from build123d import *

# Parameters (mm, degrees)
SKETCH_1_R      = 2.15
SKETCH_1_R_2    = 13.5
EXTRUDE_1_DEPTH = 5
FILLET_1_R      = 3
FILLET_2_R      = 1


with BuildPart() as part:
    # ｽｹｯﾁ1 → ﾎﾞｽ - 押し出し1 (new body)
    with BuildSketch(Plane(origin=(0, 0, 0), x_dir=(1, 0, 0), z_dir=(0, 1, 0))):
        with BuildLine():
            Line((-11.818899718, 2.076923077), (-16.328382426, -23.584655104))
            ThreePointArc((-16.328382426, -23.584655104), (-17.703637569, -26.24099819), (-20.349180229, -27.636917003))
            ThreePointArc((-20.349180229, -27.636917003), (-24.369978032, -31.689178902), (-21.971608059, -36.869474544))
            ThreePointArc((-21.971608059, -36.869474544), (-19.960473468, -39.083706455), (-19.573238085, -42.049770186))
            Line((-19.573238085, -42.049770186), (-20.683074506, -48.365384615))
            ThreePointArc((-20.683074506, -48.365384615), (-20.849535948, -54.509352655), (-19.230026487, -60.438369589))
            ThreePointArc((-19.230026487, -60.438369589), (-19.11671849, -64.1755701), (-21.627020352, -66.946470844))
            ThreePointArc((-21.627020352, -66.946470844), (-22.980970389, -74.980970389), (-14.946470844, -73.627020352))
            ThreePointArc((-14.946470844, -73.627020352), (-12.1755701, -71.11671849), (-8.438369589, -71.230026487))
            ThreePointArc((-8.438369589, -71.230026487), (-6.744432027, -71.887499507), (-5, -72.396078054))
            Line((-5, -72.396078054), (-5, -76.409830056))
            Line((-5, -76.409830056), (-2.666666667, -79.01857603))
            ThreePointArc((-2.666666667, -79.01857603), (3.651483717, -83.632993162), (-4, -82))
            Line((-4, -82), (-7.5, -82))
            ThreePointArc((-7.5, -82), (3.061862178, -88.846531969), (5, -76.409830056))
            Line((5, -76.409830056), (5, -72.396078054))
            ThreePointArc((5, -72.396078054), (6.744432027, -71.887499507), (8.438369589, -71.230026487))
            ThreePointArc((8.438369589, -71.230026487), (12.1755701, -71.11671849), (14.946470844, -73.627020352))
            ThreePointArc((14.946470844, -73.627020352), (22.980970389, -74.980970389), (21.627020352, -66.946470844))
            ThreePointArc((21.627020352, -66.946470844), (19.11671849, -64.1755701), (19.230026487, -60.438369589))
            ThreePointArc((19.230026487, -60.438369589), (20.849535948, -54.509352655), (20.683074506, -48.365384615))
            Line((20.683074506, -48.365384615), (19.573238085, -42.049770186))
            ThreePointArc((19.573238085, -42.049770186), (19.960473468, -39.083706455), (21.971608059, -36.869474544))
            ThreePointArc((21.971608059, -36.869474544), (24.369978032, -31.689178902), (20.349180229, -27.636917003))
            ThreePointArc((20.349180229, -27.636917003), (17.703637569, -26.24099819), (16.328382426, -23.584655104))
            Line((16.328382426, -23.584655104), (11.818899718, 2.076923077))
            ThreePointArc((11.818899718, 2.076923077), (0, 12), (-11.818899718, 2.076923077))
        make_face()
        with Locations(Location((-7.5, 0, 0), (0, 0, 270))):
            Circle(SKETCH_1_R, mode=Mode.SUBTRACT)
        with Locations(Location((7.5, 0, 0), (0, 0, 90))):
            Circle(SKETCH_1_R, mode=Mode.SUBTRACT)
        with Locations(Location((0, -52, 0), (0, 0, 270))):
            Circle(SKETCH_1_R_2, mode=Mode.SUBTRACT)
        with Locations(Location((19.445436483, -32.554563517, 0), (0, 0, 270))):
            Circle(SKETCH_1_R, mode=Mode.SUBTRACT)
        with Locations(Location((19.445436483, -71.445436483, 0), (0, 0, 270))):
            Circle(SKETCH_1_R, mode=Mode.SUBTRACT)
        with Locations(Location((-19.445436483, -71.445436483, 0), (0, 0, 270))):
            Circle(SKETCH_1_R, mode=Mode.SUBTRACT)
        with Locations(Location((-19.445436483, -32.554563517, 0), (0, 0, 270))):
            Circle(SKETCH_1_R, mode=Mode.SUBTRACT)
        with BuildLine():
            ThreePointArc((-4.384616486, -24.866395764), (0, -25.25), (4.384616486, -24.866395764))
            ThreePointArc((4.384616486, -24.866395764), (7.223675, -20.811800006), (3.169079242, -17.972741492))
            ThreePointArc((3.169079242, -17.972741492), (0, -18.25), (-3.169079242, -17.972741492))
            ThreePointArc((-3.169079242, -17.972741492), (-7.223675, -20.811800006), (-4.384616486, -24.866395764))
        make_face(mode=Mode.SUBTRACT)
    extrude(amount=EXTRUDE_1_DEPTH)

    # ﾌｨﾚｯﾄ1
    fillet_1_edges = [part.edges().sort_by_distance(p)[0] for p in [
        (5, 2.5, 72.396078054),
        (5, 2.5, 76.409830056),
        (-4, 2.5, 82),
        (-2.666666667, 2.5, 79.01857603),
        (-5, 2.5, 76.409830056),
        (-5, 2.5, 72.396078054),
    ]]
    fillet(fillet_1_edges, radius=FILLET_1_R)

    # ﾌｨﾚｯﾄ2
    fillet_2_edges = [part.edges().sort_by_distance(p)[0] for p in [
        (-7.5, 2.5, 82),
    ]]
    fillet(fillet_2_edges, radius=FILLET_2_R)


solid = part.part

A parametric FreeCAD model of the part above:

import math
import FreeCAD as App
import Part
import Sketcher

V = App.Vector


def edges_at(feature, points):
    """Names of the edges that pass closest to the given points."""
    edges = feature.Shape.Edges
    near = lambda p: min(range(len(edges)), key=lambda i: edges[i].distToShape(Part.Vertex(*p))[0])
    return sorted({f"Edge{near(p) + 1}" for p in points})

doc = App.newDocument("Part")
body = doc.addObject("PartDesign::Body", "Body")

# Sketch on XZ plane
sketch1 = body.newObject("Sketcher::SketchObject", "Sketch")
sketch1.AttachmentSupport = (doc.getObject("XZ_Plane"), [""])
sketch1.MapMode = "FlatFace"
sketch1.addGeometry(Part.LineSegment(V(-11.8, -2.1, 0), V(-16.3, 23.6, 0)), False)
sketch1.addGeometry(Part.ArcOfCircle(Part.Circle(V(-21.3, 22.7, 0), V(0, 0, 1), 5), math.radians(10), math.radians(80)), False)
sketch1.addGeometry(Part.ArcOfCircle(Part.Circle(V(-19.4, 32.6, 0), V(0, 0, 1), 5), math.radians(120), math.radians(260)), False)
sketch1.addGeometry(Part.ArcOfCircle(Part.Circle(V(-24.5, 41.2, 0), V(0, 0, 1), 5), math.radians(-60), math.radians(10)), False)
sketch1.addGeometry(Part.LineSegment(V(-19.6, 42, 0), V(-20.7, 48.4, 0)), False)
sketch1.addGeometry(Part.ArcOfCircle(Part.Circle(V(0, 52, 0), V(0, 0, 1), 21), math.radians(156), math.radians(190)), False)
sketch1.addGeometry(Part.ArcOfCircle(Part.Circle(V(-23.8, 62.4, 0), V(0, 0, 1), 5), math.radians(-24), math.radians(64)), False)
sketch1.addGeometry(Part.ArcOfCircle(Part.Circle(V(-19.4, 71.4, 0), V(0, 0, 1), 5), math.radians(26), math.radians(244)), False)
sketch1.addGeometry(Part.ArcOfCircle(Part.Circle(V(-10.4, 75.8, 0), V(0, 0, 1), 5), math.radians(-154), math.radians(-66)), False)
sketch1.addGeometry(Part.ArcOfCircle(Part.Circle(V(0, 52, 0), V(0, 0, 1), 21), math.radians(103.77), math.radians(113.69)), False)
sketch1.addGeometry(Part.LineSegment(V(-5, 72.4, 0), V(-5, 76.4, 0)), False)
sketch1.addGeometry(Part.LineSegment(V(-5, 76.4, 0), V(-2.7, 79, 0)), False)
sketch1.addGeometry(Part.ArcOfCircle(Part.Circle(V(0, 82, 0), V(0, 0, 1), 4), math.radians(-132), math.radians(180)), False)
sketch1.addGeometry(Part.LineSegment(V(-4, 82, 0), V(-7.5, 82, 0)), False)
sketch1.addGeometry(Part.ArcOfCircle(Part.Circle(V(0, 82, 0), V(0, 0, 1), 7.5), math.radians(-48), math.radians(180)), False)
sketch1.addGeometry(Part.LineSegment(V(5, 76.4, 0), V(5, 72.4, 0)), False)
sketch1.addGeometry(Part.ArcOfCircle(Part.Circle(V(0, 52, 0), V(0, 0, 1), 21), math.radians(66.31), math.radians(76.23)), False)
sketch1.addGeometry(Part.ArcOfCircle(Part.Circle(V(10.4, 75.8, 0), V(0, 0, 1), 5), math.radians(-114), math.radians(-26)), False)
sketch1.addGeometry(Part.ArcOfCircle(Part.Circle(V(19.4, 71.4, 0), V(0, 0, 1), 5), math.radians(-64), math.radians(154)), False)
sketch1.addGeometry(Part.ArcOfCircle(Part.Circle(V(23.8, 62.4, 0), V(0, 0, 1), 5), math.radians(116), math.radians(204)), False)
sketch1.addGeometry(Part.ArcOfCircle(Part.Circle(V(0, 52, 0), V(0, 0, 1), 21), math.radians(-10), math.radians(24)), False)
sketch1.addGeometry(Part.LineSegment(V(20.7, 48.4, 0), V(19.6, 42, 0)), False)
sketch1.addGeometry(Part.ArcOfCircle(Part.Circle(V(24.5, 41.2, 0), V(0, 0, 1), 5), math.radians(170), math.radians(240)), False)
sketch1.addGeometry(Part.ArcOfCircle(Part.Circle(V(19.4, 32.6, 0), V(0, 0, 1), 5), math.radians(-80), math.radians(60)), False)
sketch1.addGeometry(Part.ArcOfCircle(Part.Circle(V(21.3, 22.7, 0), V(0, 0, 1), 5), math.radians(100), math.radians(170)), False)
sketch1.addGeometry(Part.LineSegment(V(16.3, 23.6, 0), V(11.8, -2.1, 0)), False)
sketch1.addGeometry(Part.ArcOfCircle(Part.Circle(V(0, 0, 0), V(0, 0, 1), 12), math.radians(-170), math.radians(-10)), False)
sketch1.addGeometry(Part.Circle(V(-19.4, 71.4, 0), V(0, 0, 1), 2.1), False)
sketch1.addGeometry(Part.Circle(V(19.4, 71.4, 0), V(0, 0, 1), 2.1), False)
sketch1.addGeometry(Part.Circle(V(0, 52, 0), V(0, 0, 1), 13.5), False)
sketch1.addGeometry(Part.Circle(V(-19.4, 32.6, 0), V(0, 0, 1), 2.1), False)
sketch1.addGeometry(Part.Circle(V(-7.5, 0, 0), V(0, 0, 1), 2.1), False)
sketch1.addGeometry(Part.ArcOfCircle(Part.Circle(V(0, 0, 0), V(0, 0, 1), 25.3), math.radians(80), math.radians(100)), False)
sketch1.addGeometry(Part.ArcOfCircle(Part.Circle(V(-3.8, 21.4, 0), V(0, 0, 1), 3.5), math.radians(100), math.radians(280)), False)
sketch1.addGeometry(Part.ArcOfCircle(Part.Circle(V(0, 0, 0), V(0, 0, 1), 18.2), math.radians(80), math.radians(100)), False)
sketch1.addGeometry(Part.ArcOfCircle(Part.Circle(V(3.8, 21.4, 0), V(0, 0, 1), 3.5), math.radians(-100), math.radians(80)), False)
sketch1.addGeometry(Part.Circle(V(19.4, 32.6, 0), V(0, 0, 1), 2.1), False)
sketch1.addGeometry(Part.Circle(V(7.5, 0, 0), V(0, 0, 1), 2.1), False)
sketch1.addConstraint(Sketcher.Constraint("Tangent", 0, 2, 1, 1))
sketch1.addConstraint(Sketcher.Constraint("Tangent", 1, 2, 2, 2))
sketch1.addConstraint(Sketcher.Constraint("Tangent", 2, 1, 3, 1))
sketch1.addConstraint(Sketcher.Constraint("Tangent", 3, 2, 4, 1))
sketch1.addConstraint(Sketcher.Constraint("Tangent", 4, 2, 5, 2))
sketch1.addConstraint(Sketcher.Constraint("Tangent", 5, 1, 6, 1))
sketch1.addConstraint(Sketcher.Constraint("Tangent", 6, 2, 7, 2))
sketch1.addConstraint(Sketcher.Constraint("Tangent", 7, 1, 8, 1))
sketch1.addConstraint(Sketcher.Constraint("Tangent", 8, 2, 9, 2))
sketch1.addConstraint(Sketcher.Constraint("Coincident", 9, 1, 10, 1))
sketch1.addConstraint(Sketcher.Constraint("Coincident", 10, 2, 11, 1))
sketch1.addConstraint(Sketcher.Constraint("Coincident", 11, 2, 12, 1))
sketch1.addConstraint(Sketcher.Constraint("Coincident", 12, 2, 13, 1))
sketch1.addConstraint(Sketcher.Constraint("Coincident", 13, 2, 14, 2))
sketch1.addConstraint(Sketcher.Constraint("Coincident", 14, 1, 15, 1))
sketch1.addConstraint(Sketcher.Constraint("Coincident", 15, 2, 16, 2))
sketch1.addConstraint(Sketcher.Constraint("Tangent", 16, 1, 17, 1))
sketch1.addConstraint(Sketcher.Constraint("Tangent", 17, 2, 18, 2))
sketch1.addConstraint(Sketcher.Constraint("Tangent", 18, 1, 19, 1))
sketch1.addConstraint(Sketcher.Constraint("Tangent", 19, 2, 20, 2))
sketch1.addConstraint(Sketcher.Constraint("Tangent", 20, 1, 21, 1))
sketch1.addConstraint(Sketcher.Constraint("Tangent", 21, 2, 22, 1))
sketch1.addConstraint(Sketcher.Constraint("Tangent", 22, 2, 23, 2))
sketch1.addConstraint(Sketcher.Constraint("Tangent", 23, 1, 24, 1))
sketch1.addConstraint(Sketcher.Constraint("Tangent", 24, 2, 25, 1))
sketch1.addConstraint(Sketcher.Constraint("Tangent", 25, 2, 26, 2))
sketch1.addConstraint(Sketcher.Constraint("Tangent", 26, 1, 0, 1))
sketch1.addConstraint(Sketcher.Constraint("Tangent", 32, 2, 33, 1))
sketch1.addConstraint(Sketcher.Constraint("Tangent", 33, 2, 34, 2))
sketch1.addConstraint(Sketcher.Constraint("Tangent", 34, 1, 35, 1))
sketch1.addConstraint(Sketcher.Constraint("Tangent", 35, 2, 32, 1))
sketch1.addConstraint(Sketcher.Constraint("Vertical", 10))
sketch1.addConstraint(Sketcher.Constraint("Horizontal", 13))
sketch1.addConstraint(Sketcher.Constraint("Vertical", 15))
sketch1.addConstraint(Sketcher.Constraint("Coincident", 26, 3, -1, 1))
sketch1.addConstraint(Sketcher.Constraint("Coincident", 32, 3, -1, 1))
sketch1.addConstraint(Sketcher.Constraint("Coincident", 34, 3, -1, 1))
sketch1.addConstraint(Sketcher.Constraint("Coincident", 9, 3, 5, 3))
sketch1.addConstraint(Sketcher.Constraint("Coincident", 14, 3, 12, 3))
sketch1.addConstraint(Sketcher.Constraint("Coincident", 16, 3, 5, 3))
sketch1.addConstraint(Sketcher.Constraint("Coincident", 20, 3, 5, 3))
sketch1.addConstraint(Sketcher.Constraint("Coincident", 27, 3, 7, 3))
sketch1.addConstraint(Sketcher.Constraint("Coincident", 28, 3, 18, 3))
sketch1.addConstraint(Sketcher.Constraint("Coincident", 29, 3, 5, 3))
sketch1.addConstraint(Sketcher.Constraint("Coincident", 30, 3, 2, 3))
sketch1.addConstraint(Sketcher.Constraint("Coincident", 36, 3, 23, 3))
sketch1.addConstraint(Sketcher.Constraint("Equal", 1, 2))
sketch1.addConstraint(Sketcher.Constraint("Equal", 2, 3))
sketch1.addConstraint(Sketcher.Constraint("Equal", 3, 6))
sketch1.addConstraint(Sketcher.Constraint("Equal", 6, 7))
sketch1.addConstraint(Sketcher.Constraint("Equal", 7, 8))
sketch1.addConstraint(Sketcher.Constraint("Equal", 5, 9))
sketch1.addConstraint(Sketcher.Constraint("Equal", 9, 16))
sketch1.addConstraint(Sketcher.Constraint("Equal", 8, 17))
sketch1.addConstraint(Sketcher.Constraint("Equal", 17, 18))
sketch1.addConstraint(Sketcher.Constraint("Equal", 18, 19))
sketch1.addConstraint(Sketcher.Constraint("Equal", 16, 20))
sketch1.addConstraint(Sketcher.Constraint("Equal", 19, 22))
sketch1.addConstraint(Sketcher.Constraint("Equal", 22, 23))
sketch1.addConstraint(Sketcher.Constraint("Equal", 23, 24))
sketch1.addConstraint(Sketcher.Constraint("Equal", 27, 28))
sketch1.addConstraint(Sketcher.Constraint("Equal", 28, 30))
sketch1.addConstraint(Sketcher.Constraint("Equal", 30, 31))
sketch1.addConstraint(Sketcher.Constraint("Equal", 31, 36))
sketch1.addConstraint(Sketcher.Constraint("Equal", 36, 37))
sketch1.addConstraint(Sketcher.Constraint("Symmetric", 31, 3, 37, 3, -1, 1))
sketch1.addConstraint(Sketcher.Constraint("Symmetric", 8, 3, 17, 3, -2))
sketch1.addConstraint(Sketcher.Constraint("Symmetric", 3, 3, 22, 3, -2))
sketch1.addConstraint(Sketcher.Constraint("Symmetric", 1, 3, 24, 3, -2))
sketch1.addConstraint(Sketcher.Constraint("Symmetric", 10, 2, 14, 1, -2))
sketch1.addConstraint(Sketcher.Constraint("PointOnObject", 12, 3, -2))
sketch1.addConstraint(Sketcher.Constraint("PointOnObject", 31, 3, -1))
sketch1.addConstraint(Sketcher.Constraint("Parallel", 0, 4))
sketch1.addConstraint(Sketcher.Constraint("Horizontal", 7, 3, 18, 3))
sketch1.addConstraint(Sketcher.Constraint("Horizontal", 33, 3, 35, 3))
sketch1.addConstraint(Sketcher.Constraint("Horizontal", 14, 3, 12, 2))
sketch1.addConstraint(Sketcher.Constraint("Vertical", 2, 3, 7, 3))
sketch1.addConstraint(Sketcher.Constraint("Vertical", 31, 3, 13, 2))
sketch1.addConstraint(Sketcher.Constraint("Diameter", 29, 27.0))
sketch1.addConstraint(Sketcher.Constraint("Radius", 1, 5.0))
sketch1.addConstraint(Sketcher.Constraint("Radius", 5, 21.0))
sketch1.addConstraint(Sketcher.Constraint("Radius", 12, 4.0))
sketch1.addConstraint(Sketcher.Constraint("Radius", 26, 12.0))
sketch1.addConstraint(Sketcher.Constraint("Diameter", 27, 4.3))
sketch1.addConstraint(Sketcher.Constraint("Radius", 14, 7.5))
sketch1.addConstraint(Sketcher.Constraint("Radius", 33, 3.5))
sketch1.addConstraint(Sketcher.Constraint("Radius", 32, 25.25))
sketch1.addConstraint(Sketcher.Constraint("DistanceY", -1, 1, 5, 3, 52.0))
sketch1.addConstraint(Sketcher.Constraint("DistanceY", -1, 1, 12, 3, 82.0))
sketch1.addConstraint(Sketcher.Constraint("DistanceX", 9, 1, -1, 1, 5.0))
sketch1.addConstraint(Sketcher.Constraint("DistanceX", -1, 1, 25, 2, 11.8189))
sketch1.addConstraint(Sketcher.Constraint("Distance", 0, 26.054789))
sketch1.addConstraint(Sketcher.Constraint("Distance", 4, 6.412388))
sketch1.addConstraint(Sketcher.Constraint("DistanceY", -1, 1, 33, 3, 21.419569))
sketch1.addConstraint(Sketcher.Constraint("DistanceY", -1, 1, 5, 1, 60.43837))
sketch1.addConstraint(Sketcher.Constraint("DistanceX", 11, 2, -1, 1, 2.666667))
pad1 = body.newObject("PartDesign::Pad", "Pad")
pad1.Profile = sketch1
pad1.Length = 5
pad1.Reversed = True
doc.recompute()

fillet = body.newObject("PartDesign::Fillet", "Fillet")
fillet.Base = (pad1, edges_at(pad1, [
    (5, 2.5, 72.396),
    (5, 2.5, 76.41),
    (-4, 2.5, 82),
    (-2.667, 2.5, 79.019),
    (-5, 2.5, 76.41),
    (-5, 2.5, 72.396),
]))
fillet.Radius = 3
doc.recompute()

fillet2 = body.newObject("PartDesign::Fillet", "Fillet001")
fillet2.Base = (fillet, edges_at(fillet, [(-7.5, 2.5, 82)]))
fillet2.Radius = 1

doc.recompute()
